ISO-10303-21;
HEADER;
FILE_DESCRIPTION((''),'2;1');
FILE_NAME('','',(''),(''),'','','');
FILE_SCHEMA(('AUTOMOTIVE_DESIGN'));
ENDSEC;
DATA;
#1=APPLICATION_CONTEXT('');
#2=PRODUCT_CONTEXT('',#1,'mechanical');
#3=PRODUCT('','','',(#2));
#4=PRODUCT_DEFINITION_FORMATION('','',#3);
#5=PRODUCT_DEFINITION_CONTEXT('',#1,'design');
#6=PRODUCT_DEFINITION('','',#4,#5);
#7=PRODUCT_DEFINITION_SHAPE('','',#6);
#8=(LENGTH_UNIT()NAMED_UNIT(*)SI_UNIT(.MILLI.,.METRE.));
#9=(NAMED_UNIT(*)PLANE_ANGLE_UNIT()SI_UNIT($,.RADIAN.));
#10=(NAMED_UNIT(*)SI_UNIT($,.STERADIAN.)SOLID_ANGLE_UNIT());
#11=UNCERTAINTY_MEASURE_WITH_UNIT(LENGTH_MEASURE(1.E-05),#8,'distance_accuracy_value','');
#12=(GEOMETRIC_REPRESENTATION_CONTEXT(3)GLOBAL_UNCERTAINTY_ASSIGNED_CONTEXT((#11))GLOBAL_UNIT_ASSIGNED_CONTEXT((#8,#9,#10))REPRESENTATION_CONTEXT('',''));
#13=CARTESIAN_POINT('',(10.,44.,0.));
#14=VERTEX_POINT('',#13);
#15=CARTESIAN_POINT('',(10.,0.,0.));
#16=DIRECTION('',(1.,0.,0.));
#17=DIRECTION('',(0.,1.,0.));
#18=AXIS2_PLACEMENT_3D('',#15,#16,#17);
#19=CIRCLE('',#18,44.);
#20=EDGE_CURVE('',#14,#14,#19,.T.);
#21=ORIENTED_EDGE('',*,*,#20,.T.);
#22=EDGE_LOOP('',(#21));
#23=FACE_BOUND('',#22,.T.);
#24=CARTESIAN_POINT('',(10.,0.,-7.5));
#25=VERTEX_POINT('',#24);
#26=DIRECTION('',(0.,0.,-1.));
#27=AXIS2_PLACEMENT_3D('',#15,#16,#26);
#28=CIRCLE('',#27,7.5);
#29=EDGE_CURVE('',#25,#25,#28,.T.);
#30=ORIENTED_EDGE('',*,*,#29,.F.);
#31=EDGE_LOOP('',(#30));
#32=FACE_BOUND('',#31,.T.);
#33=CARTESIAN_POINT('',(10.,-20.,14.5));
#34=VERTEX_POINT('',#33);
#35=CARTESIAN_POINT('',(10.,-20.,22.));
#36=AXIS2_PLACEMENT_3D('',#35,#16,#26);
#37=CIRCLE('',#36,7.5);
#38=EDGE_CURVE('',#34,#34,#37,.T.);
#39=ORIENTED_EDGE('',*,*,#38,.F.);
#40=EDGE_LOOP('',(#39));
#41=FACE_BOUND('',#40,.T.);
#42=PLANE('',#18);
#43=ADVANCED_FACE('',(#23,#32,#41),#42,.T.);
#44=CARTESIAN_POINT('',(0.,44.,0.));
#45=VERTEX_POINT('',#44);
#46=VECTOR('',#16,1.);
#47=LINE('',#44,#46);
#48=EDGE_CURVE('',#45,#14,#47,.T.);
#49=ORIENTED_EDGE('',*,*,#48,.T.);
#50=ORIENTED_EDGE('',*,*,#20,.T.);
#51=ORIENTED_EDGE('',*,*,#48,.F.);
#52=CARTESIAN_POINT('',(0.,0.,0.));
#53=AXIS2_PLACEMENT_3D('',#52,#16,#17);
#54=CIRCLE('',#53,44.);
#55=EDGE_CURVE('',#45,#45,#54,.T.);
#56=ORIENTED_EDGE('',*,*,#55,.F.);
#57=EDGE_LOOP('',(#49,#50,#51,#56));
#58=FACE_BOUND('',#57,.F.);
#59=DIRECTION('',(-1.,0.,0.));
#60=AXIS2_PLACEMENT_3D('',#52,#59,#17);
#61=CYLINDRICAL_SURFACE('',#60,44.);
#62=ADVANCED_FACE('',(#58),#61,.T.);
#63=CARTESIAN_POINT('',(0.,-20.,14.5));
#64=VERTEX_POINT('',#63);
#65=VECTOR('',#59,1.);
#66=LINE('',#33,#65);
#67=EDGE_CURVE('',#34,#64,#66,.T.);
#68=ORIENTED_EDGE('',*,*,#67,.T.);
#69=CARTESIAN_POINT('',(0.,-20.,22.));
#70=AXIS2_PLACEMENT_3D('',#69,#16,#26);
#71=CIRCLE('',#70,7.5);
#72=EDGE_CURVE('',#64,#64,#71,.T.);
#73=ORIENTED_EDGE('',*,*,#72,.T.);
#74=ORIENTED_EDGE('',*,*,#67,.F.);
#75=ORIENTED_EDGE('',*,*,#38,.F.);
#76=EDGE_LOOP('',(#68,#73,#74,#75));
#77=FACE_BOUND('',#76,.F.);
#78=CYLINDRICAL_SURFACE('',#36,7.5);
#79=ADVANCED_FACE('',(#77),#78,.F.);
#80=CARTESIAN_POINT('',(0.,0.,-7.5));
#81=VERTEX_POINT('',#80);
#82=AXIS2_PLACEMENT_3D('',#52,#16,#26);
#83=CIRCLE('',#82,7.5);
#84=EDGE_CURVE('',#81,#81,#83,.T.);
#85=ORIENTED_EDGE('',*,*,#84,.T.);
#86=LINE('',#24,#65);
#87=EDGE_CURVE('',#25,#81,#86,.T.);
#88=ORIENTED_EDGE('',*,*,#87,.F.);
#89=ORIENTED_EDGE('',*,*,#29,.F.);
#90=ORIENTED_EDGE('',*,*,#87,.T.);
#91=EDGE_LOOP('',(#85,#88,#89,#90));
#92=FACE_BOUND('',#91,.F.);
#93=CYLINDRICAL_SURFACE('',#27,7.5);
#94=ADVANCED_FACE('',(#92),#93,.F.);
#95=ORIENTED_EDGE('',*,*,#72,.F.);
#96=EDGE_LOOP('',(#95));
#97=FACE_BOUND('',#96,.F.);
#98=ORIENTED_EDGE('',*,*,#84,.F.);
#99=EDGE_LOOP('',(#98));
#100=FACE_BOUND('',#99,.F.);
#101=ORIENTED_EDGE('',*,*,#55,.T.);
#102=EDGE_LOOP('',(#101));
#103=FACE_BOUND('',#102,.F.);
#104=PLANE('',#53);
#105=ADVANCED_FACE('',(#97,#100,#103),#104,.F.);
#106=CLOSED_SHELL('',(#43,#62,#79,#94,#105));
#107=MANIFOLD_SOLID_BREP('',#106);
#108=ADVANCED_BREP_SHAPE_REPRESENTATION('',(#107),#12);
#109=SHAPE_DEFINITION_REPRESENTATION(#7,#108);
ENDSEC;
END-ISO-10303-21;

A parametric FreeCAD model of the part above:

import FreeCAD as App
import Part
import Sketcher

V = App.Vector

doc = App.newDocument("Part")
body = doc.addObject("PartDesign::Body", "Body")

# Sketch on YZ plane
sketch1 = doc.addObject("Sketcher::SketchObject", "Sketch")
body.addObject(sketch1)
sketch1.AttachmentSupport = (doc.YZ_Plane, [""])
sketch1.MapMode = "FlatFace"
sketch1.addGeometry(Part.Circle(V(0, 0, 0), V(0, 0, 1), 44), False)
sketch1.addConstraint(Sketcher.Constraint("Coincident", 0, 3, -1, 1))
sketch1.addConstraint(Sketcher.Constraint("Diameter", 0, 88.0))
pad1 = doc.addObject("PartDesign::Pad", "Pad")
body.addObject(pad1)
pad1.Profile = sketch1
pad1.Length = 10

# Sketch on YZ plane
sketch2 = doc.addObject("Sketcher::SketchObject", "Sketch001")
body.addObject(sketch2)
sketch2.AttachmentSupport = (doc.YZ_Plane, [""])
sketch2.MapMode = "FlatFace"
sketch2.AttachmentOffset = App.Placement(V(0, 0, 10), App.Rotation())
sketch2.addGeometry(Part.Circle(V(0, 0, 0), V(0, 0, 1), 8), False)
sketch2.addConstraint(Sketcher.Constraint("Coincident", 0, 3, -1, 1))
sketch2.addConstraint(Sketcher.Constraint("Diameter", 0, 15.0))
pocket1 = doc.addObject("PartDesign::Pocket", "Pocket")
body.addObject(pocket1)
pocket1.Profile = sketch2
pocket1.Type = "ThroughAll"

# Sketch on YZ plane
sketch3 = doc.addObject("Sketcher::SketchObject", "Sketch002")
body.addObject(sketch3)
sketch3.AttachmentSupport = (doc.YZ_Plane, [""])
sketch3.MapMode = "FlatFace"
sketch3.AttachmentOffset = App.Placement(V(0, 0, 10), App.Rotation())
sketch3.addGeometry(Part.Circle(V(-20, 22, 0), V(0, 0, 1), 8), False)
sketch3.addConstraint(Sketcher.Constraint("Diameter", 0, 15.0))
sketch3.addConstraint(Sketcher.Constraint("DistanceX", 0, 3, -1, 1, 20.0))
sketch3.addConstraint(Sketcher.Constraint("DistanceY", -1, 1, 0, 3, 22.0))
pocket2 = doc.addObject("PartDesign::Pocket", "Pocket001")
body.addObject(pocket2)
pocket2.Profile = sketch3
pocket2.Type = "ThroughAll"

doc.recompute()
